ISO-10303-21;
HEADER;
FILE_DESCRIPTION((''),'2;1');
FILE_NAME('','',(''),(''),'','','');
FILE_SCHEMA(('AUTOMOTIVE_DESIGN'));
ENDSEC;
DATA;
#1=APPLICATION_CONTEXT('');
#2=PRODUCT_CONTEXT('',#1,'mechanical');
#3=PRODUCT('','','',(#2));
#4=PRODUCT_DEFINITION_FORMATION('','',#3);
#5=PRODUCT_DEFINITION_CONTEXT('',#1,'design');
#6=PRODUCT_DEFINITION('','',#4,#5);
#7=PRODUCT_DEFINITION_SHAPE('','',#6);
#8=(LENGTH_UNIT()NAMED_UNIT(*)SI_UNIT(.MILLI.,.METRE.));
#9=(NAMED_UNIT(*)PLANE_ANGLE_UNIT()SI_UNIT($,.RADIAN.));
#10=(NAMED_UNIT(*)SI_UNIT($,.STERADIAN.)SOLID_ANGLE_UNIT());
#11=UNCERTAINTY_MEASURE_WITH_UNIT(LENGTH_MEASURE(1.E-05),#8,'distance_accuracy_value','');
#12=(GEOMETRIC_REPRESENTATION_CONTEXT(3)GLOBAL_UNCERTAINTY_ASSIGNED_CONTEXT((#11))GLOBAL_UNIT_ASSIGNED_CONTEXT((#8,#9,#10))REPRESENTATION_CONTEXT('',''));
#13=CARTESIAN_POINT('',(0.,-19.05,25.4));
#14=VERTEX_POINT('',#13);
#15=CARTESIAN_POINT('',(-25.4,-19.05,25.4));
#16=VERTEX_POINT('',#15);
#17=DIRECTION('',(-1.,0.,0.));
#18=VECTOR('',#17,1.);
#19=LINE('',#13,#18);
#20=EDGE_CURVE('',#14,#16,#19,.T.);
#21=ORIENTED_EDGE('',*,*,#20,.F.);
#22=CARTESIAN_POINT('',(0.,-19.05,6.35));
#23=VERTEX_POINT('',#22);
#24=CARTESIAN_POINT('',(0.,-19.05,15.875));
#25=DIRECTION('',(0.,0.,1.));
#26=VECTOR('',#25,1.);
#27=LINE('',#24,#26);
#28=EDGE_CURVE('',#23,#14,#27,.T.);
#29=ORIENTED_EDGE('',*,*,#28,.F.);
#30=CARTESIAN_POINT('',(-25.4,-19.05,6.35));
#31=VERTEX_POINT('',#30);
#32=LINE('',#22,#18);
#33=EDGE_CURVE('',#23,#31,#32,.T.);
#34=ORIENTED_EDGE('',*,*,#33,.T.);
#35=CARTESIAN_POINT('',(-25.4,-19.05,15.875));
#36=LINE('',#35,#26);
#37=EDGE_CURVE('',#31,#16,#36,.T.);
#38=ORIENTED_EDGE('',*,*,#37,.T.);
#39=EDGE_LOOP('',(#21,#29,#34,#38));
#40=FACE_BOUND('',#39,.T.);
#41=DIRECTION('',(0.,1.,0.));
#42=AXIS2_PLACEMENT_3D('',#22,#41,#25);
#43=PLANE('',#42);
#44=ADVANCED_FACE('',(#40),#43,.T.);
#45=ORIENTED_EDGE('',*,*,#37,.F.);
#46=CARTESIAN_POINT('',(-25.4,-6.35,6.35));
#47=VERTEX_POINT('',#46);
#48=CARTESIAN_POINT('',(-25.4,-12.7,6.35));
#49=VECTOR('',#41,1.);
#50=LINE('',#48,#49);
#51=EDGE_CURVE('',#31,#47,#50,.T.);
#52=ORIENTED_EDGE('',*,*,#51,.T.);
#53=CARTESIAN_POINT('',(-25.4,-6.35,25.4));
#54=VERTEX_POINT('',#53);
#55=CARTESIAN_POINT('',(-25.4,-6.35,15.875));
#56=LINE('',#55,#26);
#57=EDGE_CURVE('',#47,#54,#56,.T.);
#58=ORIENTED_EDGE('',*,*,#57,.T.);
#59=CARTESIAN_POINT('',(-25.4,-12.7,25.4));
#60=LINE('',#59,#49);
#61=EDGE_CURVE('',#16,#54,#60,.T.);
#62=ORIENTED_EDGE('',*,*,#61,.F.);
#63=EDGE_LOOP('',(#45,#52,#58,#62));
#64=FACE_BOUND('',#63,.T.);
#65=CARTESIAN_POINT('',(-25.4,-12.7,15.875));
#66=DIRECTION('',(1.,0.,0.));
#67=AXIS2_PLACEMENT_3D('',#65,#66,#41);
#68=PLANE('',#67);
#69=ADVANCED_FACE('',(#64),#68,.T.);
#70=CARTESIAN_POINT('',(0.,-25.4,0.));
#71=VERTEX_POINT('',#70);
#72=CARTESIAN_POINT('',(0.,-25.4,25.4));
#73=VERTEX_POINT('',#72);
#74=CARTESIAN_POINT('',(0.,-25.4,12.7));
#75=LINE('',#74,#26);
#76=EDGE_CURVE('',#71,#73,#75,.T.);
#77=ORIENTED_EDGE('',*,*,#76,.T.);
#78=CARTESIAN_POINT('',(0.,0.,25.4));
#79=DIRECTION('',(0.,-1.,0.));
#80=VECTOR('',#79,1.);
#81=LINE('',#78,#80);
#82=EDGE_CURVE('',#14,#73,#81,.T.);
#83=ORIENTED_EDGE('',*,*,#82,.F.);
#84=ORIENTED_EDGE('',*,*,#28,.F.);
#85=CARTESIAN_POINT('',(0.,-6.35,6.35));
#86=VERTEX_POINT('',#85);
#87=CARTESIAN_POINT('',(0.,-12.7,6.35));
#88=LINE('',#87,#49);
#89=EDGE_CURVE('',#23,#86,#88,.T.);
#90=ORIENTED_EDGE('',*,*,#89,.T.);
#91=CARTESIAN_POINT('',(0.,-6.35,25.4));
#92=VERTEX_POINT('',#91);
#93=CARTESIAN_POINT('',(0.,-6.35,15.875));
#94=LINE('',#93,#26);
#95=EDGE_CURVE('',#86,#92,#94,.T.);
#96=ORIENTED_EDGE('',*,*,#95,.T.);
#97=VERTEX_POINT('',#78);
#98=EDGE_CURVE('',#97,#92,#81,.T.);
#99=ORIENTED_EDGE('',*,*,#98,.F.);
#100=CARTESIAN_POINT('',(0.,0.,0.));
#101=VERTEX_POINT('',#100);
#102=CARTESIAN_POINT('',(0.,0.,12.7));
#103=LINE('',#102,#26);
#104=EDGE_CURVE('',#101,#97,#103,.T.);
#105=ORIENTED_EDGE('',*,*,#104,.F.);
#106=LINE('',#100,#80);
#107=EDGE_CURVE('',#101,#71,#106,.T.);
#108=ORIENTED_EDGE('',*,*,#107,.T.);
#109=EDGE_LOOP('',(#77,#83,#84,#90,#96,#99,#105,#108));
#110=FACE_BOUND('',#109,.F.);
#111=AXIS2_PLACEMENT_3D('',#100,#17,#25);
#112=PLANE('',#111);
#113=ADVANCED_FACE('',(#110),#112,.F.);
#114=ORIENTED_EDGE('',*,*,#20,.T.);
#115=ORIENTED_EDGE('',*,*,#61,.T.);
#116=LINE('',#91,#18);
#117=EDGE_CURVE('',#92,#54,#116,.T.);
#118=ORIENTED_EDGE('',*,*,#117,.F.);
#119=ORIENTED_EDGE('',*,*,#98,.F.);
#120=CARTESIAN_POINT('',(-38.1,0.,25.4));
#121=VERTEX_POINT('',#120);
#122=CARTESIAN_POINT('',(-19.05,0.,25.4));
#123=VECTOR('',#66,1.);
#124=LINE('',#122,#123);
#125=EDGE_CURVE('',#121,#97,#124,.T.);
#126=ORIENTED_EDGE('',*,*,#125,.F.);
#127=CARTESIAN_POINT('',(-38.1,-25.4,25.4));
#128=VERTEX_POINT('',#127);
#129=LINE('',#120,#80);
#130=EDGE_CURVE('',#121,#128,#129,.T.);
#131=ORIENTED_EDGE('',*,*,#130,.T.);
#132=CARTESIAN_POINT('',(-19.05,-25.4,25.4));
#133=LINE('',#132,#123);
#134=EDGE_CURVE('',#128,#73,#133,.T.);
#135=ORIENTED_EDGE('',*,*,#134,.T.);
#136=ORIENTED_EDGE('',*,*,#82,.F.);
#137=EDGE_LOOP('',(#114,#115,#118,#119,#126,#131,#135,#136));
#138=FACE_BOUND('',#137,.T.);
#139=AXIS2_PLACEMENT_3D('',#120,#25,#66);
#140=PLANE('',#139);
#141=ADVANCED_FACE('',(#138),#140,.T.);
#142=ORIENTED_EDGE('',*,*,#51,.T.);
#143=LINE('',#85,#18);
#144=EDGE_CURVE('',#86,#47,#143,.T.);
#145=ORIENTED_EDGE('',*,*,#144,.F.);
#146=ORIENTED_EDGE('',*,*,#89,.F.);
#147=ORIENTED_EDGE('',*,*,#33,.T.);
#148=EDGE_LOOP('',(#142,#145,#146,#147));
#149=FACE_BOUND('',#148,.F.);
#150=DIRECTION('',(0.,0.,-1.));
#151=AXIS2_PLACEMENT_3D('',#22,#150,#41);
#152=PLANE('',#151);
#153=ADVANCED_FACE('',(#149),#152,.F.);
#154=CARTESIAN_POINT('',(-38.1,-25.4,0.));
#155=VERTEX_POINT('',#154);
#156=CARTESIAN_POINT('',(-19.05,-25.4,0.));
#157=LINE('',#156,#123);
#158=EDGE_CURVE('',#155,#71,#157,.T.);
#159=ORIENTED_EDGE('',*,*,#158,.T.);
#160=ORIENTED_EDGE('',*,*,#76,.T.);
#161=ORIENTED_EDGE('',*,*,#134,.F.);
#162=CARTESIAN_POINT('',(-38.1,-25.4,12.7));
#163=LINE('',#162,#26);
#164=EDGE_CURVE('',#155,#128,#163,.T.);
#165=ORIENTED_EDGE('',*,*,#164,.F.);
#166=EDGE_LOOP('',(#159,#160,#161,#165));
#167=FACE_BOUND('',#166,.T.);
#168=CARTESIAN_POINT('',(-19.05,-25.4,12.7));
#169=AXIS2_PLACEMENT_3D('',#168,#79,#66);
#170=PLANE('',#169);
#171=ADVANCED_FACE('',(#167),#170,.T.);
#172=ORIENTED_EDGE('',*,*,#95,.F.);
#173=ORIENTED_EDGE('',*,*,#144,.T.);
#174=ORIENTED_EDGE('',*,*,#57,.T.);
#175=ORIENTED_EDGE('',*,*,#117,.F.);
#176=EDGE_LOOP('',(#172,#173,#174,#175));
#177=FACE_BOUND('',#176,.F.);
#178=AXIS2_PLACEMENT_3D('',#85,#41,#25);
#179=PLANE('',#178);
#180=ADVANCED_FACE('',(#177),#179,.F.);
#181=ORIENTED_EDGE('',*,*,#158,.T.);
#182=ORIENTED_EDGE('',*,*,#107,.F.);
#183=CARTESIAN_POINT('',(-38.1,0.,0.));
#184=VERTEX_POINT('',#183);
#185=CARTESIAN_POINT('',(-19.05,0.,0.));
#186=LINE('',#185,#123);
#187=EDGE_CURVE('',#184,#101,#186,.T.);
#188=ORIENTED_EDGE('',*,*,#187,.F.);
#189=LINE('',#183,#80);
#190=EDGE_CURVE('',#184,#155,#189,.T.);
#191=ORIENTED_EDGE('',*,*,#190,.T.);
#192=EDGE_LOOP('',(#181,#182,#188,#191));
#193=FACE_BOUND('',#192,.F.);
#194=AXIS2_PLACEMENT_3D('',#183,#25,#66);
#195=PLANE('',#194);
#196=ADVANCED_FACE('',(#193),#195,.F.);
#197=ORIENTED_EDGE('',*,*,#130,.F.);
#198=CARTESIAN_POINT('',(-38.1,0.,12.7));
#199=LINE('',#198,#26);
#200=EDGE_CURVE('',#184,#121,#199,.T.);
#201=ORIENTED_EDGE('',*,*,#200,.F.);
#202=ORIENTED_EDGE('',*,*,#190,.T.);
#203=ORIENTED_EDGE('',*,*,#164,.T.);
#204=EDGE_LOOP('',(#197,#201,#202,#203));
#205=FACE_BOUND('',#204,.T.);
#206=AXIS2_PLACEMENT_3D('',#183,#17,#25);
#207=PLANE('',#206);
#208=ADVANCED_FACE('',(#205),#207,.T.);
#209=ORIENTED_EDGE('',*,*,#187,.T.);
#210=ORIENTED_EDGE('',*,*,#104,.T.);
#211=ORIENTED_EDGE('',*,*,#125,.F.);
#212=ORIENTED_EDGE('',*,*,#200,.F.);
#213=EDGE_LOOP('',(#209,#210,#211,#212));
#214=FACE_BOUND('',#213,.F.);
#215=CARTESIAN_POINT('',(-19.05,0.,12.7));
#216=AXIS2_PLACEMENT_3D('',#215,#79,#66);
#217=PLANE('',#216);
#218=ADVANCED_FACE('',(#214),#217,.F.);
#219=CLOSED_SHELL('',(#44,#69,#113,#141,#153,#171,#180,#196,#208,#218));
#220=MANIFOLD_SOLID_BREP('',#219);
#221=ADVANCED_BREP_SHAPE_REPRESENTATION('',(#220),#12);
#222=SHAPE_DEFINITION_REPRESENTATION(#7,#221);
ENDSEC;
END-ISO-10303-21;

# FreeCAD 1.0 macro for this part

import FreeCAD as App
import Part
import Sketcher
Q = App.Units.Quantity


def add_polygon(sketch, points):
    """Adds a closed chain of lines whose ends are joined by coincident constraints."""
    first, n = sketch.GeometryCount, len(points)
    for a, b in zip(points, points[1:] + points[:1]):
        sketch.addGeometry(Part.LineSegment(App.Vector(*a, 0), App.Vector(*b, 0)), False)
    for i in range(n):
        sketch.addConstraint(Sketcher.Constraint("Coincident", first + i, 2, first + (i + 1) % n, 1))

doc = App.newDocument("Part")
body = doc.addObject("PartDesign::Body", "Body")

# Sketch on XZ plane
sketch1 = body.newObject("Sketcher::SketchObject", "Sketch")
sketch1.AttachmentSupport = (doc.getObject("XZ_Plane"), [""])
sketch1.MapMode = "FlatFace"
add_polygon(sketch1, [(-38.1, 25.4), (-38.1, 0), (0, 0), (0, 25.4)])  # lines 0-3
sketch1.addConstraint([
    Sketcher.Constraint("Vertical", 0),
    Sketcher.Constraint("Horizontal", 1),
    Sketcher.Constraint("Vertical", 2),
    Sketcher.Constraint("Horizontal", 3),
    Sketcher.Constraint("Coincident", 1, 2, -1, 1),
    Sketcher.Constraint("DistanceY", 0, 2, 0, 1, Q("1 in")),
    Sketcher.Constraint("DistanceX", 1, 1, 1, 2, Q("1.5 in")),
])
pad1 = body.newObject("PartDesign::Pad", "Pad")
pad1.Profile = sketch1
pad1.Length = Q("1 in")

# Sketch on YZ plane
sketch2 = body.newObject("Sketcher::SketchObject", "Sketch001")
sketch2.AttachmentSupport = (doc.getObject("YZ_Plane"), [""])
sketch2.MapMode = "FlatFace"
add_polygon(sketch2, [(-19.05, 25.4), (-19.05, 6.35), (-6.35, 6.35), (-6.35, 25.4)])  # lines 0-3
sketch2.addConstraint([
    Sketcher.Constraint("Vertical", 0),
    Sketcher.Constraint("Horizontal", 1),
    Sketcher.Constraint("Vertical", 2),
    Sketcher.Constraint("Horizontal", 3),
    Sketcher.Constraint("DistanceX", 1, 1, 1, 2, Q("0.5 in")),
    Sketcher.Constraint("DistanceY", -1, 1, 2, 2, Q("1 in")),
    Sketcher.Constraint("DistanceY", 0, 2, 0, 1, Q("0.75 in")),
    Sketcher.Constraint("DistanceX", 0, 2, -1, 1, Q("0.75 in")),
])
pocket1 = body.newObject("PartDesign::Pocket", "Pocket")
pocket1.Profile = sketch2
pocket1.Length = Q("1 in")

doc.recompute()
